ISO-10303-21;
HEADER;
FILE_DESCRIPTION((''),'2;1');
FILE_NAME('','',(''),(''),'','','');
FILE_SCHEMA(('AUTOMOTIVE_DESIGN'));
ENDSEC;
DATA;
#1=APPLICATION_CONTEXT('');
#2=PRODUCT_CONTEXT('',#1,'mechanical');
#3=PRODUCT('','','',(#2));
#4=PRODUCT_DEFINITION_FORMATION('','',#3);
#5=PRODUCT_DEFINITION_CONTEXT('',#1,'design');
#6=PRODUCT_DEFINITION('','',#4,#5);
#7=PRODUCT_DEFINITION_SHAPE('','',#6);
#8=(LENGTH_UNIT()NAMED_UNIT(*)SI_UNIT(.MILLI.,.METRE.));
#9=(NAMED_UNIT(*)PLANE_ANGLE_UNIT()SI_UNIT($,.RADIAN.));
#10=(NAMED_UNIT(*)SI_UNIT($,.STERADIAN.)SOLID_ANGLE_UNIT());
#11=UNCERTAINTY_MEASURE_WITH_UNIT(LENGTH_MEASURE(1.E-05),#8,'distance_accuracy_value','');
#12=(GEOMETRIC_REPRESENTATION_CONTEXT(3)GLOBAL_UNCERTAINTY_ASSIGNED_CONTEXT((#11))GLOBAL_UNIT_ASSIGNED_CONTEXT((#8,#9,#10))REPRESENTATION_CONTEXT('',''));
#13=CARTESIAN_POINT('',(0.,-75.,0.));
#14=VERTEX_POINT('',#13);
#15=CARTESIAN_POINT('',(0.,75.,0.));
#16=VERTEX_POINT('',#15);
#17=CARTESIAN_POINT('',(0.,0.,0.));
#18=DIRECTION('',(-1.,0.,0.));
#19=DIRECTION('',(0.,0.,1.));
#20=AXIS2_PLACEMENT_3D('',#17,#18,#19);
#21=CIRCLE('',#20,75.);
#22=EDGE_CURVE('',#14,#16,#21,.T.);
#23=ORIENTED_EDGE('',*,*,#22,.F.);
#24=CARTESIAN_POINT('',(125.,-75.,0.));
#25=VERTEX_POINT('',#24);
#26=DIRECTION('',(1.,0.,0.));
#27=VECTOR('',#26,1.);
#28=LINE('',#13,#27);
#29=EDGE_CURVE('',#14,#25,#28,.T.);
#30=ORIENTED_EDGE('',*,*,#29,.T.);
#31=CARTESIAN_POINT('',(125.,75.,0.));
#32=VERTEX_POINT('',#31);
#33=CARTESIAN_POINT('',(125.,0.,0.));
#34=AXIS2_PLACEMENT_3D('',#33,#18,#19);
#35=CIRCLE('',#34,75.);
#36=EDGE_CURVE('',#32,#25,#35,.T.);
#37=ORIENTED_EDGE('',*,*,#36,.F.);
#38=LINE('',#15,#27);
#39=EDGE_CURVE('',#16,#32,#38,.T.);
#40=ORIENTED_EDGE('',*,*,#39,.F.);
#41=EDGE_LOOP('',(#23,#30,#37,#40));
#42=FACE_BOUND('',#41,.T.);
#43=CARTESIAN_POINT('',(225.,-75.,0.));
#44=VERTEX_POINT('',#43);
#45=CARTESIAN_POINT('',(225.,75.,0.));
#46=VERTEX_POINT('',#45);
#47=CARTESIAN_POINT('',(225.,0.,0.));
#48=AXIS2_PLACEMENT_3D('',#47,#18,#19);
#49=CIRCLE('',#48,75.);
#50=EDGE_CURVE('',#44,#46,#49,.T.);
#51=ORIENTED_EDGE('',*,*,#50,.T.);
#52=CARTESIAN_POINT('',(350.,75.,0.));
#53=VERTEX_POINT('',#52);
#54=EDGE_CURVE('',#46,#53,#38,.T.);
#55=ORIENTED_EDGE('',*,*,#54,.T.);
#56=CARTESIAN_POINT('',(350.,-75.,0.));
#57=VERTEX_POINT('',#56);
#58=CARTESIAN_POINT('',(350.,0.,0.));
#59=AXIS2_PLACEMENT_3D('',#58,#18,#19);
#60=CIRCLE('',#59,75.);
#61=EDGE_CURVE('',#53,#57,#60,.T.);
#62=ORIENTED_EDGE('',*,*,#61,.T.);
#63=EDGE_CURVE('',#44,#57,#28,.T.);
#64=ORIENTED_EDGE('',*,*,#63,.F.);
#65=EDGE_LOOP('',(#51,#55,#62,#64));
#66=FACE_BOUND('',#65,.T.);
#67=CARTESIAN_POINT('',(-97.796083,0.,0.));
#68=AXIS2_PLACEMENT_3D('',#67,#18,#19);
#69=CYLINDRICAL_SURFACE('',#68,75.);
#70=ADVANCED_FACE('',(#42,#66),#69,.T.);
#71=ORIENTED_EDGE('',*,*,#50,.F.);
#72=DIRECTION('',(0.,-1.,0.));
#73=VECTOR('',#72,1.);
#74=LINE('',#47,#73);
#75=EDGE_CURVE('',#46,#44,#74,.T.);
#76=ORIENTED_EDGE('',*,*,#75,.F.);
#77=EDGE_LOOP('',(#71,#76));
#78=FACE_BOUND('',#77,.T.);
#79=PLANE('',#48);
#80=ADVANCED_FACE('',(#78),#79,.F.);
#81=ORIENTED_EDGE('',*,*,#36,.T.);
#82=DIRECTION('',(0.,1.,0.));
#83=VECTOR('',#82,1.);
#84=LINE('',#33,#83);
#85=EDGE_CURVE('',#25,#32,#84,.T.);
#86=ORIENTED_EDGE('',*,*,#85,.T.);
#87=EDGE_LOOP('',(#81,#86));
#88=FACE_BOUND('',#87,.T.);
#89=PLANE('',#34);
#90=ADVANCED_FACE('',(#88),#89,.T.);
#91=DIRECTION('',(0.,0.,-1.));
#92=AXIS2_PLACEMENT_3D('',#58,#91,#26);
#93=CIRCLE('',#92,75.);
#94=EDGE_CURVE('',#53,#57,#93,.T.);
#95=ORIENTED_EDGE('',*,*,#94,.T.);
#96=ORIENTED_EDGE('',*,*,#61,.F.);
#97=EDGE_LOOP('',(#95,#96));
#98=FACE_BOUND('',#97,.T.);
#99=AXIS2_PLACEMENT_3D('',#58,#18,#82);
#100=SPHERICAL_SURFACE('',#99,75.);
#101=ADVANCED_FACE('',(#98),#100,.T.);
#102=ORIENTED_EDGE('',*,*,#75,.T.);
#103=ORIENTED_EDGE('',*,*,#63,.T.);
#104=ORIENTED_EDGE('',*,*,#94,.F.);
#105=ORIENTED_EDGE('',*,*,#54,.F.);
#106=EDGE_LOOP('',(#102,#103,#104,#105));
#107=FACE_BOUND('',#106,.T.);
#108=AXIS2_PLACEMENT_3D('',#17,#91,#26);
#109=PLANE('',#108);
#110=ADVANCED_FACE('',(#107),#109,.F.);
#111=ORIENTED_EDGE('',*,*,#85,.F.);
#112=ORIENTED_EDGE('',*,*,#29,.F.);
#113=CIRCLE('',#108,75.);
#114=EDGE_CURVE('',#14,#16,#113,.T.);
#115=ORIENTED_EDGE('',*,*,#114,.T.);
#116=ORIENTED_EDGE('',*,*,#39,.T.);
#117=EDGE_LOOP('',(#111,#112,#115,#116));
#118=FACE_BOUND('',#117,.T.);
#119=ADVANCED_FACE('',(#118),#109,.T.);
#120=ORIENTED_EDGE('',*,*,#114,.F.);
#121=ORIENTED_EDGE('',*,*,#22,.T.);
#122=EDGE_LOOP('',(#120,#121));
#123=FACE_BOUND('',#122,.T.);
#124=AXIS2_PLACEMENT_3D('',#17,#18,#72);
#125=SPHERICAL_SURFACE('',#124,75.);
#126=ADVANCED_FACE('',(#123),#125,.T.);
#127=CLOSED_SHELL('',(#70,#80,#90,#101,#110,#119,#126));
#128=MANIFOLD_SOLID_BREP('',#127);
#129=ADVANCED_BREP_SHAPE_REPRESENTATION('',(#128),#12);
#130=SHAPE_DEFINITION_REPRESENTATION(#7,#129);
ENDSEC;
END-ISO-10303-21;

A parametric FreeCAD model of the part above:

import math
import FreeCAD as App
import Part
import Sketcher
Q = App.Units.Quantity

doc = App.newDocument("Part")
body = doc.addObject("PartDesign::Body", "Body")

sketch1 = doc.addObject("Sketcher::SketchObject", "Sketch")
body.addObject(sketch1)
sketch1.AttachmentSupport = (doc.XY_Plane, [""])
sketch1.MapMode = "FlatFace"
sketch1.addGeometry(Part.LineSegment(App.Vector(225, 75, 0), App.Vector(0, 75, 0)), False)
sketch1.addGeometry(Part.ArcOfCircle(Part.Circle(App.Vector(0, 0, 0), App.Vector(0, 0, 1), 75), math.radians(90), math.radians(180)), False)
sketch1.addGeometry(Part.LineSegment(App.Vector(-75, 0, 0), App.Vector(225, 0, 0)), False)
sketch1.addGeometry(Part.LineSegment(App.Vector(225, 0, 0), App.Vector(225, 75, 0)), False)
sketch1.addConstraint(Sketcher.Constraint("Tangent", 0, 2, 1, 1))
sketch1.addConstraint(Sketcher.Constraint("Coincident", 1, 2, 2, 1))
sketch1.addConstraint(Sketcher.Constraint("Coincident", 2, 2, 3, 1))
sketch1.addConstraint(Sketcher.Constraint("Coincident", 3, 2, 0, 1))
sketch1.addConstraint(Sketcher.Constraint("Horizontal", 0))
sketch1.addConstraint(Sketcher.Constraint("Horizontal", 2))
sketch1.addConstraint(Sketcher.Constraint("Vertical", 3))
sketch1.addConstraint(Sketcher.Constraint("Coincident", 1, 3, -1, 1))
sketch1.addConstraint(Sketcher.Constraint("PointOnObject", 1, 2, -1))
sketch1.addConstraint(Sketcher.Constraint("Radius", 1, Q("75 mm")))
sketch1.addConstraint(Sketcher.Constraint("DistanceX", 0, 2, 0, 1, Q("225 mm")))
revolution = doc.addObject("PartDesign::Revolution", "Revolution")
body.addObject(revolution)
revolution.Profile = sketch1
revolution.ReferenceAxis = (sketch1, ["H_Axis"])
revolution.Angle = 180

sketch2 = doc.addObject("Sketcher::SketchObject", "Sketch001")
body.addObject(sketch2)
sketch2.AttachmentSupport = (doc.XY_Plane, [""])
sketch2.MapMode = "FlatFace"
sketch2.addGeometry(Part.LineSegment(App.Vector(125, -75, 0), App.Vector(350, -75, 0)), False)
sketch2.addGeometry(Part.ArcOfCircle(Part.Circle(App.Vector(350, 0, 0), App.Vector(0, 0, 1), 75), math.radians(-90), math.radians(0)), False)
sketch2.addGeometry(Part.LineSegment(App.Vector(425, 0, 0), App.Vector(125, 0, 0)), False)
sketch2.addGeometry(Part.LineSegment(App.Vector(125, 0, 0), App.Vector(125, -75, 0)), False)
sketch2.addConstraint(Sketcher.Constraint("Tangent", 0, 2, 1, 1))
sketch2.addConstraint(Sketcher.Constraint("Coincident", 1, 2, 2, 1))
sketch2.addConstraint(Sketcher.Constraint("Coincident", 2, 2, 3, 1))
sketch2.addConstraint(Sketcher.Constraint("Coincident", 3, 2, 0, 1))
sketch2.addConstraint(Sketcher.Constraint("Horizontal", 0))
sketch2.addConstraint(Sketcher.Constraint("Horizontal", 2))
sketch2.addConstraint(Sketcher.Constraint("Vertical", 3))
sketch2.addConstraint(Sketcher.Constraint("PointOnObject", 1, 3, -1))
sketch2.addConstraint(Sketcher.Constraint("PointOnObject", 1, 2, -1))
sketch2.addConstraint(Sketcher.Constraint("Radius", 1, Q("75 mm")))
sketch2.addConstraint(Sketcher.Constraint("DistanceX", 0, 1, 0, 2, Q("225 mm")))
sketch2.addConstraint(Sketcher.Constraint("DistanceX", -1, 1, 1, 3, Q("350 mm")))
revolution2 = doc.addObject("PartDesign::Revolution", "Revolution001")
body.addObject(revolution2)
revolution2.Profile = sketch2
revolution2.ReferenceAxis = (sketch2, ["H_Axis"])
revolution2.Angle = 180

doc.recompute()
